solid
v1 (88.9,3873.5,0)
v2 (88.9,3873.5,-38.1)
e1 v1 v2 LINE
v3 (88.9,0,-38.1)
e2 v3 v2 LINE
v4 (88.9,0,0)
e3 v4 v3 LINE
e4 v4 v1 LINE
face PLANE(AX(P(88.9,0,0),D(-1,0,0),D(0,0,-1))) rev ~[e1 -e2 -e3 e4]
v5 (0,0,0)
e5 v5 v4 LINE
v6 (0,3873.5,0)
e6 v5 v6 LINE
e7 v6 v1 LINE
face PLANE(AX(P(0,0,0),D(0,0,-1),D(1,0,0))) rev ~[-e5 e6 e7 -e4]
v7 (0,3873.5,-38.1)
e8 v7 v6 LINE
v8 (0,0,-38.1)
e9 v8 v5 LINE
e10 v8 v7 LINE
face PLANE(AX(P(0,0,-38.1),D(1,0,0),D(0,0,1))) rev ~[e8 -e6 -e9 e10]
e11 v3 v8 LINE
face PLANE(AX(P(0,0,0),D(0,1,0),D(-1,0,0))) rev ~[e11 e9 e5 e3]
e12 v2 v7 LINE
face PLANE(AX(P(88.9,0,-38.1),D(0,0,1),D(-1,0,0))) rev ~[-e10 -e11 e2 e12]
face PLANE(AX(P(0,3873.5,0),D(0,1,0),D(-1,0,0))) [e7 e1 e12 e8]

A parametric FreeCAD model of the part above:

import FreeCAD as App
import Part
import Sketcher
Q = App.Units.Quantity


def add_polygon(sketch, points):
    """Adds a closed chain of lines whose ends are joined by coincident constraints."""
    first, n = sketch.GeometryCount, len(points)
    for a, b in zip(points, points[1:] + points[:1]):
        sketch.addGeometry(Part.LineSegment(App.Vector(*a, 0), App.Vector(*b, 0)), False)
    for i in range(n):
        sketch.addConstraint(Sketcher.Constraint("Coincident", first + i, 2, first + (i + 1) % n, 1))

doc = App.newDocument("Part")
body = doc.addObject("PartDesign::Body", "Body")

# Sketch on XZ plane
sketch1 = body.newObject("Sketcher::SketchObject", "Sketch")
sketch1.AttachmentSupport = (doc.getObject("XZ_Plane"), [""])
sketch1.MapMode = "FlatFace"
add_polygon(sketch1, [(0, -38), (0, 0), (89, 0), (89, -38)])  # lines 0-3
sketch1.addConstraint(Sketcher.Constraint("Vertical", 0))
sketch1.addConstraint(Sketcher.Constraint("Horizontal", 1))
sketch1.addConstraint(Sketcher.Constraint("Vertical", 2))
sketch1.addConstraint(Sketcher.Constraint("Horizontal", 3))
sketch1.addConstraint(Sketcher.Constraint("Coincident", 0, 2, -1, 1))
sketch1.addConstraint(Sketcher.Constraint("DistanceX", 1, 1, 1, 2, Q("3.5 in")))
sketch1.addConstraint(Sketcher.Constraint("DistanceY", 0, 1, 0, 2, Q("1.5 in")))
pad1 = body.newObject("PartDesign::Pad", "Pad")
pad1.Profile = sketch1
pad1.Length = Q("152.5 in")
pad1.Reversed = True

doc.recompute()
